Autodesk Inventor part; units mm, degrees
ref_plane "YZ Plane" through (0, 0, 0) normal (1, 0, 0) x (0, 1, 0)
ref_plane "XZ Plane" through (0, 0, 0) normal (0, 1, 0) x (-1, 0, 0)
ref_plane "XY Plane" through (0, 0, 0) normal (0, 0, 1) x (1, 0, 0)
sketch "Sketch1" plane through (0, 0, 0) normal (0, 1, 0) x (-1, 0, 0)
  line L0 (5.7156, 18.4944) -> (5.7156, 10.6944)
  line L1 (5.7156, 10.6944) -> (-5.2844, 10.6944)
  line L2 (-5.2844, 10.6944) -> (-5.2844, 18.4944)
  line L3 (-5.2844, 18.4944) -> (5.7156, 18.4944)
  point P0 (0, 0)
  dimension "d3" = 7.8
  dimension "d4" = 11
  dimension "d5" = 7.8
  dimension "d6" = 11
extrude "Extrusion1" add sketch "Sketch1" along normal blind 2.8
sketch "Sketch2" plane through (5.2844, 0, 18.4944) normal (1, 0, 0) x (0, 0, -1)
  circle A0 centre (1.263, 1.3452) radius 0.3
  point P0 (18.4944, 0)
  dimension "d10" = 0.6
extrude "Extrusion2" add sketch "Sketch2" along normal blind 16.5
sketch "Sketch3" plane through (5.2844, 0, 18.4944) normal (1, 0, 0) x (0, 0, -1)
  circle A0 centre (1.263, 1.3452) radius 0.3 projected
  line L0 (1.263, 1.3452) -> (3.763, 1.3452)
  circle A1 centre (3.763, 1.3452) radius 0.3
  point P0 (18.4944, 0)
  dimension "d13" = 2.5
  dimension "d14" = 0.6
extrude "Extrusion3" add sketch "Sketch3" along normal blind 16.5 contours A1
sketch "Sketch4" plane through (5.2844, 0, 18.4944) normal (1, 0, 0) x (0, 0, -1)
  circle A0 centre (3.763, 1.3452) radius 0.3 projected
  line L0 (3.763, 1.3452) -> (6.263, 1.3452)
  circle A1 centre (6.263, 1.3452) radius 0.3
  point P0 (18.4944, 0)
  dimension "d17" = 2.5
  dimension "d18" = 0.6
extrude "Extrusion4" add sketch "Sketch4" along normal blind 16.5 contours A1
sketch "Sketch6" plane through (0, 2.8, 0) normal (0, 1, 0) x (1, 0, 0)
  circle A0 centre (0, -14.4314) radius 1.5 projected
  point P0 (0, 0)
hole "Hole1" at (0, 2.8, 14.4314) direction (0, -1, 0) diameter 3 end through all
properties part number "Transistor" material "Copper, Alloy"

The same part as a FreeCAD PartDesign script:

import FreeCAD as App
import Part
import Sketcher

V = App.Vector

doc = App.newDocument("Part")
body = doc.addObject("PartDesign::Body", "Body")

# Sketch on XZ plane
sketch1 = body.newObject("Sketcher::SketchObject", "Sketch")
sketch1.AttachmentSupport = (doc.getObject("XZ_Plane"), [""])
sketch1.MapMode = "FlatFace"
sketch1.addGeometry([
    Part.LineSegment(V(-6, 11, 0), V(-6, 18, 0)),
    Part.LineSegment(V(-6, 18, 0), V(5, 18, 0)),
    Part.LineSegment(V(5, 18, 0), V(5, 11, 0)),
    Part.LineSegment(V(5, 11, 0), V(-6, 11, 0)),
], False)
sketch1.addConstraint([
    Sketcher.Constraint("Coincident", 0, 2, 1, 1),
    Sketcher.Constraint("Coincident", 1, 2, 2, 1),
    Sketcher.Constraint("Coincident", 2, 2, 3, 1),
    Sketcher.Constraint("Coincident", 3, 2, 0, 1),
    Sketcher.Constraint("Vertical", 0),
    Sketcher.Constraint("Horizontal", 1),
    Sketcher.Constraint("Vertical", 2),
    Sketcher.Constraint("Horizontal", 3),
    Sketcher.Constraint("DistanceX", 1, 1, 1, 2, 11.0),
    Sketcher.Constraint("DistanceY", 0, 1, 0, 2, 7.8),
    Sketcher.Constraint("DistanceX", 0, 2, -1, 1, 5.7156),
    Sketcher.Constraint("DistanceY", -1, 1, 0, 2, 18.4944),
])
pad1 = body.newObject("PartDesign::Pad", "Pad")
pad1.Profile = sketch1
pad1.Length = 2.8
pad1.Reversed = True

# Sketch on YZ plane
sketch2 = body.newObject("Sketcher::SketchObject", "Sketch001")
sketch2.AttachmentSupport = (doc.getObject("YZ_Plane"), [""])
sketch2.MapMode = "FlatFace"
sketch2.AttachmentOffset = App.Placement(V(0, 0, 5.2844), App.Rotation())
sketch2.addGeometry(Part.Circle(V(1.35, 17.23, 0), V(0, 0, 1), 0.3), False)
sketch2.addConstraint([
    Sketcher.Constraint("Diameter", 0, 0.6),
    Sketcher.Constraint("DistanceX", -1, 1, 0, 3, 1.3452),
    Sketcher.Constraint("DistanceY", -1, 1, 0, 3, 17.2314),
])
pad2 = body.newObject("PartDesign::Pad", "Pad001")
pad2.Profile = sketch2
pad2.Length = 16.5

# Sketch on YZ plane
sketch3 = body.newObject("Sketcher::SketchObject", "Sketch002")
sketch3.AttachmentSupport = (doc.getObject("YZ_Plane"), [""])
sketch3.MapMode = "FlatFace"
sketch3.AttachmentOffset = App.Placement(V(0, 0, 5.2844), App.Rotation())
sketch3.addGeometry(Part.Circle(V(1.35, 14.73, 0), V(0, 0, 1), 0.3), False)
sketch3.addConstraint([
    Sketcher.Constraint("Diameter", 0, 0.6),
    Sketcher.Constraint("DistanceX", -1, 1, 0, 3, 1.3452),
    Sketcher.Constraint("DistanceY", -1, 1, 0, 3, 14.7314),
])
pad3 = body.newObject("PartDesign::Pad", "Pad002")
pad3.Profile = sketch3
pad3.Length = 16.5

# Sketch on YZ plane
sketch4 = body.newObject("Sketcher::SketchObject", "Sketch003")
sketch4.AttachmentSupport = (doc.getObject("YZ_Plane"), [""])
sketch4.MapMode = "FlatFace"
sketch4.AttachmentOffset = App.Placement(V(0, 0, 5.2844), App.Rotation())
sketch4.addGeometry(Part.Circle(V(1.35, 12.23, 0), V(0, 0, 1), 0.3), False)
sketch4.addConstraint([
    Sketcher.Constraint("Diameter", 0, 0.6),
    Sketcher.Constraint("DistanceX", -1, 1, 0, 3, 1.3452),
    Sketcher.Constraint("DistanceY", -1, 1, 0, 3, 12.2314),
])
pad4 = body.newObject("PartDesign::Pad", "Pad003")
pad4.Profile = sketch4
pad4.Length = 16.5

# Sketch on XZ plane
sketch5 = body.newObject("Sketcher::SketchObject", "Sketch004")
sketch5.AttachmentSupport = (doc.getObject("XZ_Plane"), [""])
sketch5.MapMode = "FlatFace"
sketch5.AttachmentOffset = App.Placement(V(0, 0, -2.8), App.Rotation())
sketch5.addGeometry(Part.Circle(V(0, 14.4, 0), V(0, 0, 1), 1.5), False)
sketch5.addConstraint([
    Sketcher.Constraint("PointOnObject", 0, 3, -2),
    Sketcher.Constraint("Diameter", 0, 3.0),
    Sketcher.Constraint("DistanceY", -1, 1, 0, 3, 14.4314),
])
doc.recompute()
hole = body.newObject("PartDesign::Hole", "Hole")
hole.Profile = sketch5
hole.ThreadType = "None"
hole.Diameter = 3
hole.DepthType = "ThroughAll"
hole.Reversed = True

doc.recompute()
